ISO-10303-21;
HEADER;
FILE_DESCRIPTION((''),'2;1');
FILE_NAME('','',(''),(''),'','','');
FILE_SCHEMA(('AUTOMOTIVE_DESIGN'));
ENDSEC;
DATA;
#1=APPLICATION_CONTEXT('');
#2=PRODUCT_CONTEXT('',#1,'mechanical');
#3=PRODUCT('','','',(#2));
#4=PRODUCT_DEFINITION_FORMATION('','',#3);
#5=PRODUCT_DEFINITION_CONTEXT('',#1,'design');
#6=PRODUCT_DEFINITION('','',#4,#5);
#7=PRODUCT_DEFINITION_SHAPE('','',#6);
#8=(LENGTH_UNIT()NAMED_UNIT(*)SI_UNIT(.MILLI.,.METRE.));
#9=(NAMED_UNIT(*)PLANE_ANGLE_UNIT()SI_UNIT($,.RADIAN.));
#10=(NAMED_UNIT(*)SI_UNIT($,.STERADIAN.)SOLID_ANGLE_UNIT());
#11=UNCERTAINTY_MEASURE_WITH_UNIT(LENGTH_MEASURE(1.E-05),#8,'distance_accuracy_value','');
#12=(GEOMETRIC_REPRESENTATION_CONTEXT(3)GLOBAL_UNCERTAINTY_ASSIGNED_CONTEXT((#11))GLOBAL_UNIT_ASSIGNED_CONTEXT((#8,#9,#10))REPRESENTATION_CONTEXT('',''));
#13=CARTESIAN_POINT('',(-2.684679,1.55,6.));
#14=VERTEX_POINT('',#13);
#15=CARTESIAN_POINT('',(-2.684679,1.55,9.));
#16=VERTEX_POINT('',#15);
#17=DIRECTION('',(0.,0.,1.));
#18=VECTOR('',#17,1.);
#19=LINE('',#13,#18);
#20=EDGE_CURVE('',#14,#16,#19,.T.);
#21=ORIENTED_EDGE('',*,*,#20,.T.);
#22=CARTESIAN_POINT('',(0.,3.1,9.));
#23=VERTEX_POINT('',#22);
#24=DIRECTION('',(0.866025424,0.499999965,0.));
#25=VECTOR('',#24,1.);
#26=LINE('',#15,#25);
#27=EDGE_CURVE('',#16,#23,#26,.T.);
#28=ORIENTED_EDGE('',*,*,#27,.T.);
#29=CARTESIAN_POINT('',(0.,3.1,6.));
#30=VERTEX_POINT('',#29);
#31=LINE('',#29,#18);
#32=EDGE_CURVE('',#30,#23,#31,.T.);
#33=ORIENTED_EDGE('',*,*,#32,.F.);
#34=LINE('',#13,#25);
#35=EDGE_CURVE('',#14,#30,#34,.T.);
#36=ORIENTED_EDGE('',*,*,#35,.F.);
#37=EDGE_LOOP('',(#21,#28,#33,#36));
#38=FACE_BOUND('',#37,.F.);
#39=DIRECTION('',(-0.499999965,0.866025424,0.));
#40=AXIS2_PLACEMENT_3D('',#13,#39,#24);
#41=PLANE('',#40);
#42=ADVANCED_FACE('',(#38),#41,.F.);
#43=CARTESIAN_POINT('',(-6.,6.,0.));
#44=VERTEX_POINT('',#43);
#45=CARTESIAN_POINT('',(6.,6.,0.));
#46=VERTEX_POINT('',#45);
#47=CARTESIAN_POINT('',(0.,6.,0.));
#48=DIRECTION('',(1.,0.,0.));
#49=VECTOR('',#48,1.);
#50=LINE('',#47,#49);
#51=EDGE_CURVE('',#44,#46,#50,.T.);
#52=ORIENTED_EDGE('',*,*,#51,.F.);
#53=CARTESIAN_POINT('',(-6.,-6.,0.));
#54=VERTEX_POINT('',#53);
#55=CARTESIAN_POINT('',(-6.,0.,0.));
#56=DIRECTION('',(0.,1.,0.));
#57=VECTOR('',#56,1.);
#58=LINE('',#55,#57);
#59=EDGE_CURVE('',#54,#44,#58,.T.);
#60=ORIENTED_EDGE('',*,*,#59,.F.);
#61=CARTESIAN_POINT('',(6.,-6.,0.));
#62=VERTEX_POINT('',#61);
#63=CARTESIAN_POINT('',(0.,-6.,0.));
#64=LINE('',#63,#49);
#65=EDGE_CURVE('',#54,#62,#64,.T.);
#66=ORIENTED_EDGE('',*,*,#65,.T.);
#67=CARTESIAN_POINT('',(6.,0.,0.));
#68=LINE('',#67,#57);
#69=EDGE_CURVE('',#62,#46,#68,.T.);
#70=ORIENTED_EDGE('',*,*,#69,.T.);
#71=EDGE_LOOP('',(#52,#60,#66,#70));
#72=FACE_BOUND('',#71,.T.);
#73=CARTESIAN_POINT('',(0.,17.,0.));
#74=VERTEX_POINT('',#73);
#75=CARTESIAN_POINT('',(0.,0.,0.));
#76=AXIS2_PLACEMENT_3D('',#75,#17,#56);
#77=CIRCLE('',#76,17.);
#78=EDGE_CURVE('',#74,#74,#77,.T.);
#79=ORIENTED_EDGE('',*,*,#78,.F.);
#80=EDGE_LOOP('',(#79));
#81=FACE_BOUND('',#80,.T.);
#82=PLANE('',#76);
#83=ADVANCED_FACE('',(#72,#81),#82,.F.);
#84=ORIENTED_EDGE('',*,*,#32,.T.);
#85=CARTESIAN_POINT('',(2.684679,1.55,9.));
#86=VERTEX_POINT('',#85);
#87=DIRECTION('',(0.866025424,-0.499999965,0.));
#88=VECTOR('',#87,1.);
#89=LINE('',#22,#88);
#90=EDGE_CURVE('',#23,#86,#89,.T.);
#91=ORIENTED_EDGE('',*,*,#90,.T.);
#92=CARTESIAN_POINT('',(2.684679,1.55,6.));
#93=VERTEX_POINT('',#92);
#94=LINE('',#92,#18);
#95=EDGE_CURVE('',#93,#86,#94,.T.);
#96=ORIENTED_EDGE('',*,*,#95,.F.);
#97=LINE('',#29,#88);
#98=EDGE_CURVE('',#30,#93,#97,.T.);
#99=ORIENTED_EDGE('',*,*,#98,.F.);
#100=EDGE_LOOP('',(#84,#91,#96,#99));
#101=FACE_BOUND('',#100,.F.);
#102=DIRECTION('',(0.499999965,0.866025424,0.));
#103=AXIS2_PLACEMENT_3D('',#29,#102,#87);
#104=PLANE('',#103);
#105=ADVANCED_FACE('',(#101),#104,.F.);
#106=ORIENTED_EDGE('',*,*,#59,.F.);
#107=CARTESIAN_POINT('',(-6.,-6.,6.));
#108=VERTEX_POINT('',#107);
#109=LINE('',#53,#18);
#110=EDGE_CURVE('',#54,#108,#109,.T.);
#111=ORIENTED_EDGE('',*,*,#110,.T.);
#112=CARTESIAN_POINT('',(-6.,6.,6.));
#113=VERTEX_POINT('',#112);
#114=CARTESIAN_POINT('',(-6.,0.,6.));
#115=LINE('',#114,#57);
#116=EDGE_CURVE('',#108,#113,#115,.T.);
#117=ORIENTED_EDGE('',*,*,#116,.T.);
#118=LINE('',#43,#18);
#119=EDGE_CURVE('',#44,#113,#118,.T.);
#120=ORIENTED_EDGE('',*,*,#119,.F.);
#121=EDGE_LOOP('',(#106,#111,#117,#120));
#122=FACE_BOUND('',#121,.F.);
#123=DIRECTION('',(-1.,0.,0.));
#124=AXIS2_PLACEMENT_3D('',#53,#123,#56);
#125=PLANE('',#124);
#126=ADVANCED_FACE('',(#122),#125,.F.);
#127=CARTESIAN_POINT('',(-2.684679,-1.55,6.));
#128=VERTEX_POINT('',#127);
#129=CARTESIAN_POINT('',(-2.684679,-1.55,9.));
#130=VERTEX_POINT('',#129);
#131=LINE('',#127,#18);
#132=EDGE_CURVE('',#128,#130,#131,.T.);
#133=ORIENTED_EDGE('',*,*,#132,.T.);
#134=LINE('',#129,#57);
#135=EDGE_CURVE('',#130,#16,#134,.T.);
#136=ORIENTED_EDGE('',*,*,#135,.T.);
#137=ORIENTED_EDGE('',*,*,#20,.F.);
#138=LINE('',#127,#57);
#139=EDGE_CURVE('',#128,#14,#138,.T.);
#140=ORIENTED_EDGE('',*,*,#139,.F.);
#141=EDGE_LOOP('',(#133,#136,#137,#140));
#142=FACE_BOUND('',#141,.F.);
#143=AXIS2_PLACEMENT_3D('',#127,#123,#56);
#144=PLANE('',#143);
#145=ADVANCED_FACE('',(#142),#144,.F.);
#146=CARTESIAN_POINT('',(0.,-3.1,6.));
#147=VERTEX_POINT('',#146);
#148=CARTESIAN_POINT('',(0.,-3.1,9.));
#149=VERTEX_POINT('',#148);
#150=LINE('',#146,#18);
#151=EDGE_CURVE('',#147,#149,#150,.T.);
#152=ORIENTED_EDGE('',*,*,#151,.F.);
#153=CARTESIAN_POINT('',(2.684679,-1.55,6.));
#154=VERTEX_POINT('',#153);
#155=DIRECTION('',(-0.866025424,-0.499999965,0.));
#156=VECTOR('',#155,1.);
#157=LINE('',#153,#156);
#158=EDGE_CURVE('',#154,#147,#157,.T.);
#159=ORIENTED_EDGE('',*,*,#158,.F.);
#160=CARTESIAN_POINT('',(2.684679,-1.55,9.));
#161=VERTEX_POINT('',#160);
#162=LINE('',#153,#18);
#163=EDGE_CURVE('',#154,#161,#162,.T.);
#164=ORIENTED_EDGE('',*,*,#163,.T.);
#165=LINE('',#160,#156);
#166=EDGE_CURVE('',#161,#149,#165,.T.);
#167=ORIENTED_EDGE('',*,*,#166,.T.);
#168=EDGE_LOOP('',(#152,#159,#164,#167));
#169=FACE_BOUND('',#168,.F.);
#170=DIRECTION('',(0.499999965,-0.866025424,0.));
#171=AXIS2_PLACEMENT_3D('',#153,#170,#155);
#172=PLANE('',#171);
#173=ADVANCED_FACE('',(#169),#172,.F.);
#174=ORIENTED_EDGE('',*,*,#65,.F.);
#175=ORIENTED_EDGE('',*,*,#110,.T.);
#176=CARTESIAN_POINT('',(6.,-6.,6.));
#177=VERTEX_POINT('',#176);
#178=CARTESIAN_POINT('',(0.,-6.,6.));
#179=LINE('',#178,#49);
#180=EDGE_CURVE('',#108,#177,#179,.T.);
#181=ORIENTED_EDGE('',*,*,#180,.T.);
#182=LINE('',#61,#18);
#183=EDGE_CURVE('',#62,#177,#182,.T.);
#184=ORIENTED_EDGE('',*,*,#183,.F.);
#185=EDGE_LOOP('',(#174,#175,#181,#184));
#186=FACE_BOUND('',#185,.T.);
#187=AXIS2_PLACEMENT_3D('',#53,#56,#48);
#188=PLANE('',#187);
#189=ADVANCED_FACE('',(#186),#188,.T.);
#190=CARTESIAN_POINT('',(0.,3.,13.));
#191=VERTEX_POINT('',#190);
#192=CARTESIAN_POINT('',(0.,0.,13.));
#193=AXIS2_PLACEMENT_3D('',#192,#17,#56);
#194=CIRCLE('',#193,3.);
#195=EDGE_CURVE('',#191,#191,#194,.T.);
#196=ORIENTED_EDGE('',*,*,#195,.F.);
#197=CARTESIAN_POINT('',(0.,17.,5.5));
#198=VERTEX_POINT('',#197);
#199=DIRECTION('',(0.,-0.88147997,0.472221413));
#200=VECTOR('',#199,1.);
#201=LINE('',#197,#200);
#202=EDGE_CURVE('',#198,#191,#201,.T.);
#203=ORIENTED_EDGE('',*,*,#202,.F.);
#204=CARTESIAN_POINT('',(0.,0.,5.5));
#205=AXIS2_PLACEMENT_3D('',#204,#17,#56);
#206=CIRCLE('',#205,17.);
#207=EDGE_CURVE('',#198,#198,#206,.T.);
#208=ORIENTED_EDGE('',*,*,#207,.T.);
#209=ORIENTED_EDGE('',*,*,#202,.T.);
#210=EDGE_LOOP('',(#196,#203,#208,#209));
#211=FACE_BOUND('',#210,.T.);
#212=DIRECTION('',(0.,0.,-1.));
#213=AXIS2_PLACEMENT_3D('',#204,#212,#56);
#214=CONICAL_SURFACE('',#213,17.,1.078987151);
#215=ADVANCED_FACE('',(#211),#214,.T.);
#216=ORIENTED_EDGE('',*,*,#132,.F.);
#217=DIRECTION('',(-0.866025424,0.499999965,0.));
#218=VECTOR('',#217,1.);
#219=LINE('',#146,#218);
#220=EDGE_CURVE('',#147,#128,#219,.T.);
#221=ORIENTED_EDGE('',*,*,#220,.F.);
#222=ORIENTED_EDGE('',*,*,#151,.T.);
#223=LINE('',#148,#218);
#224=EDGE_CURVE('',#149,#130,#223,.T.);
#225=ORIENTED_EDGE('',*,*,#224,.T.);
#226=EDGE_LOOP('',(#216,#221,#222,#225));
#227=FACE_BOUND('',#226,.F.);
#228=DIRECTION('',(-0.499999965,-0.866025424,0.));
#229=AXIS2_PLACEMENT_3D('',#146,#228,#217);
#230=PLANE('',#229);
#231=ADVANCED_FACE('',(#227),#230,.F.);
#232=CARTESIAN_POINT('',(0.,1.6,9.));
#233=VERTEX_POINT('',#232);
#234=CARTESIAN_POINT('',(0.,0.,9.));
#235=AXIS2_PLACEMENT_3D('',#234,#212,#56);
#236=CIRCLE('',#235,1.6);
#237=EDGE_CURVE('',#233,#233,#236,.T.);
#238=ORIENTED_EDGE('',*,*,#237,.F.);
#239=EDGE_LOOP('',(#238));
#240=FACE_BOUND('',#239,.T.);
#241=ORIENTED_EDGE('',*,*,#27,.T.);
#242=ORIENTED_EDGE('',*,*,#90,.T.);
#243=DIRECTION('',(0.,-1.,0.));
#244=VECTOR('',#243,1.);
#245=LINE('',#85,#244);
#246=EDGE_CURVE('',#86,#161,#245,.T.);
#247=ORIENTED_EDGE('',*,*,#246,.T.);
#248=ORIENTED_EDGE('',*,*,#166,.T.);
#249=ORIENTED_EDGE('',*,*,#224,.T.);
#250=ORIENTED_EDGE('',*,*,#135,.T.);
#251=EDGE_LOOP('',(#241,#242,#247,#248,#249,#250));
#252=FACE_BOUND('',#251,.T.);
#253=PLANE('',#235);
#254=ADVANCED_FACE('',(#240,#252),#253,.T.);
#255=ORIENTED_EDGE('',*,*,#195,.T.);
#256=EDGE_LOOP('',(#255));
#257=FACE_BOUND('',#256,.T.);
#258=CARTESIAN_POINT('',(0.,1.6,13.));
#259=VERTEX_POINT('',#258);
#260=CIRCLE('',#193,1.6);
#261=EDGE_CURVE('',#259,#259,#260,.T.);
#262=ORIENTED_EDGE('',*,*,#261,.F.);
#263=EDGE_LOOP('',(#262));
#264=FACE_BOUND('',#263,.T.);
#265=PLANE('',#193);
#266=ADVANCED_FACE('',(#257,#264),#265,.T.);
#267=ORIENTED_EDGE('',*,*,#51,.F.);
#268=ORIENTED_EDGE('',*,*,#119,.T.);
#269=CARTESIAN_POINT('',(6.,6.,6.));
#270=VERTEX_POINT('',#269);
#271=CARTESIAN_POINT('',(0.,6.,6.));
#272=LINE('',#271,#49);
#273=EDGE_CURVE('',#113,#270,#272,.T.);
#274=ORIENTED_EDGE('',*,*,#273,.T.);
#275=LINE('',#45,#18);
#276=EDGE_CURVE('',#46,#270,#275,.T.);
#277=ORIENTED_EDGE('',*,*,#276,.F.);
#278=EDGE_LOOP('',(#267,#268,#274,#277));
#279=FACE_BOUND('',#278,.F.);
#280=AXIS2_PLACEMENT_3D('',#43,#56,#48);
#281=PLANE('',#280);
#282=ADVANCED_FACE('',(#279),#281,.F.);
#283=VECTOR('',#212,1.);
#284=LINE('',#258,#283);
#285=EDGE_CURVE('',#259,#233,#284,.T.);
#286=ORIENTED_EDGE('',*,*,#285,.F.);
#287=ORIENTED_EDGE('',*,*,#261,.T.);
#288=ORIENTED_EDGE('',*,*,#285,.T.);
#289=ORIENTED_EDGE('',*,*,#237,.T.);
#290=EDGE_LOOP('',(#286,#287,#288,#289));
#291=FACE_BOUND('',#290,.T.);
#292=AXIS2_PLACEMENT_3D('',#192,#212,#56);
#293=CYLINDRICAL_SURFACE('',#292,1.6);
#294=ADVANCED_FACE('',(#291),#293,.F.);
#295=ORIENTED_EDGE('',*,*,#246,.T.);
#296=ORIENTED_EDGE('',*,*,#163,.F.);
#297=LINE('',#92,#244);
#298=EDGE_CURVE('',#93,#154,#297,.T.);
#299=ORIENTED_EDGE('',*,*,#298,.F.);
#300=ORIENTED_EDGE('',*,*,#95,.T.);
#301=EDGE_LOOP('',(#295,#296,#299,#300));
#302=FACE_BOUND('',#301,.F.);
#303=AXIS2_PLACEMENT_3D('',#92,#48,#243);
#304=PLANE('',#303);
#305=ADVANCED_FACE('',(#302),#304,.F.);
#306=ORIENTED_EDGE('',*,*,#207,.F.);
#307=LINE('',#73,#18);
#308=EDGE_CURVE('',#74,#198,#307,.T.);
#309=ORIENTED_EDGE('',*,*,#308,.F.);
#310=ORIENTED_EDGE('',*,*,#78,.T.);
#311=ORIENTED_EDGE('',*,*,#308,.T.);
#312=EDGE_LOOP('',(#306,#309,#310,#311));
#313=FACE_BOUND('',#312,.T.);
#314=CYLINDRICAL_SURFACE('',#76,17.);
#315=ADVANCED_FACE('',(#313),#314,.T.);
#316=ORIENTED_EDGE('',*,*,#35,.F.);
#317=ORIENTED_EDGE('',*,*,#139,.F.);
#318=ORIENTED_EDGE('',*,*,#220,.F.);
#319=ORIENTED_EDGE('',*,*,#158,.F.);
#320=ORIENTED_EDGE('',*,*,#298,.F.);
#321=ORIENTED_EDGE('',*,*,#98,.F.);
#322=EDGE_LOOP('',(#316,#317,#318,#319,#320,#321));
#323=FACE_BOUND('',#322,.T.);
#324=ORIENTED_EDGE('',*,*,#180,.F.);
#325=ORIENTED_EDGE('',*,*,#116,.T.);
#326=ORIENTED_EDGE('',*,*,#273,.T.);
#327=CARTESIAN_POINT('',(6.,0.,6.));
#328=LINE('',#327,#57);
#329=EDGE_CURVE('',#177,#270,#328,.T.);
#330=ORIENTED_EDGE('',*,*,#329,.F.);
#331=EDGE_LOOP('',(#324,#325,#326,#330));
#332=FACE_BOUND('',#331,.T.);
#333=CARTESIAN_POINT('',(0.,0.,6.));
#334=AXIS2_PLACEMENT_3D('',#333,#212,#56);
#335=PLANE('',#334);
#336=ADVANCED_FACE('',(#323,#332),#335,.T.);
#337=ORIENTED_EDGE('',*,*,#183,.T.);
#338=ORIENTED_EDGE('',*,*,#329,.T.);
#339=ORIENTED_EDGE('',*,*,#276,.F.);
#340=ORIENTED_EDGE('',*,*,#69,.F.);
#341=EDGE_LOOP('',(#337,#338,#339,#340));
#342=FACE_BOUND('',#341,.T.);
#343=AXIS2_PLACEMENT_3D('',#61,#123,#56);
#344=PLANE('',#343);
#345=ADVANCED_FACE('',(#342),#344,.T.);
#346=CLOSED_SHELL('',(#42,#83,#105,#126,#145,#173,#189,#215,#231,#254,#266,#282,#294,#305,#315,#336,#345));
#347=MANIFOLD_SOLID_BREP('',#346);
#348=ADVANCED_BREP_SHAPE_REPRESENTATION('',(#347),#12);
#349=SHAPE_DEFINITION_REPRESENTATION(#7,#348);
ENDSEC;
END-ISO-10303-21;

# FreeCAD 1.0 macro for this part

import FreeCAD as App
import Part
import Sketcher
from FreeCAD import Vector
Q = App.Units.Quantity


def add_polygon(sketch, points):
    """Adds a closed chain of lines whose ends are joined by coincident constraints."""
    first, n = sketch.GeometryCount, len(points)
    for a, b in zip(points, points[1:] + points[:1]):
        sketch.addGeometry(Part.LineSegment(App.Vector(*a, 0), App.Vector(*b, 0)), False)
    for i in range(n):
        sketch.addConstraint(Sketcher.Constraint("Coincident", first + i, 2, first + (i + 1) % n, 1))

doc = App.newDocument("Part")
body = doc.addObject("PartDesign::Body", "Body")

# Sketch on YZ plane
sketch1 = body.newObject("Sketcher::SketchObject", "Sketch")
sketch1.AttachmentSupport = (doc.getObject("YZ_Plane"), [""])
sketch1.MapMode = "FlatFace"
add_polygon(sketch1, [(1.6, 13), (1.6, 0), (17, 0), (17, 5.5), (3, 13)])  # lines 0-4
sketch1.addConstraint(Sketcher.Constraint("Vertical", 0))
sketch1.addConstraint(Sketcher.Constraint("Horizontal", 1))
sketch1.addConstraint(Sketcher.Constraint("Vertical", 2))
sketch1.addConstraint(Sketcher.Constraint("Horizontal", 4))
sketch1.addConstraint(Sketcher.Constraint("PointOnObject", 0, 2, -1))
sketch1.addConstraint(Sketcher.Constraint("DistanceY", 0, 2, 0, 1, 13.0))
sketch1.addConstraint(Sketcher.Constraint("DistanceX", 1, 1, 1, 2, 15.4))
sketch1.addConstraint(Sketcher.Constraint("DistanceX", 4, 2, 4, 1, 1.4))
sketch1.addConstraint(Sketcher.Constraint("DistanceY", 2, 1, 2, 2, 5.5))
sketch1.addConstraint(Sketcher.Constraint("DistanceX", -1, 1, 1, 2, 17.0))
revolution = body.newObject("PartDesign::Revolution", "Revolution")
revolution.Profile = sketch1
revolution.ReferenceAxis = (sketch1, ["V_Axis"])
revolution.Angle = 360

# Sketch on XY plane
sketch2 = body.newObject("Sketcher::SketchObject", "Sketch001")
sketch2.AttachmentSupport = (doc.getObject("XY_Plane"), [""])
sketch2.MapMode = "FlatFace"
add_polygon(sketch2, [(6, -6), (-6, -6), (-6, 6), (6, 6)])  # lines 0-3
sketch2.addConstraint(Sketcher.Constraint("Horizontal", 0))
sketch2.addConstraint(Sketcher.Constraint("Vertical", 1))
sketch2.addConstraint(Sketcher.Constraint("Horizontal", 2))
sketch2.addConstraint(Sketcher.Constraint("Vertical", 3))
sketch2.addConstraint(Sketcher.Constraint("Symmetric", 0, 2, 2, 2, -1, 1))
sketch2.addConstraint(Sketcher.Constraint("Equal", 2, 1))
sketch2.addConstraint(Sketcher.Constraint("DistanceX", 0, 2, 0, 1, 12.0))
pocket1 = body.newObject("PartDesign::Pocket", "Pocket")
pocket1.Profile = sketch2
pocket1.Length = 6
pocket1.Reversed = True

# Sketch on XY plane
sketch3 = body.newObject("Sketcher::SketchObject", "Sketch002")
sketch3.AttachmentSupport = (doc.getObject("XY_Plane"), [""])
sketch3.MapMode = "FlatFace"
sketch3.AttachmentOffset = App.Placement(Vector(0, 0, 6), App.Rotation())
add_polygon(sketch3, [(0, 3.1), (2.7, 1.6), (2.7, -1.6), (0, -3.1), (-2.7, -1.6), (-2.7, 1.6)])  # lines 0-5
sketch3.addConstraint(Sketcher.Constraint("Vertical", 1))
sketch3.addConstraint(Sketcher.Constraint("Vertical", 4))
sketch3.addConstraint(Sketcher.Constraint("Symmetric", 0, 2, 3, 2, -1, 1))
sketch3.addConstraint(Sketcher.Constraint("Symmetric", 2, 2, 5, 2, -1, 1))
sketch3.addConstraint(Sketcher.Constraint("PointOnObject", 2, 2, -2))
sketch3.addConstraint(Sketcher.Constraint("Parallel", 2, 5))
sketch3.addConstraint(Sketcher.Constraint("Horizontal", 1, 2, 3, 2))
sketch3.addConstraint(Sketcher.Constraint("Angle", 0, Q("-29.999998 deg")))
sketch3.addConstraint(Sketcher.Constraint("DistanceY", 1, 2, 1, 1, 3.1))
sketch3.addConstraint(Sketcher.Constraint("Distance", 0, 3.1))
pocket2 = body.newObject("PartDesign::Pocket", "Pocket001")
pocket2.Profile = sketch3
pocket2.Length = 3
pocket2.Reversed = True

doc.recompute()
